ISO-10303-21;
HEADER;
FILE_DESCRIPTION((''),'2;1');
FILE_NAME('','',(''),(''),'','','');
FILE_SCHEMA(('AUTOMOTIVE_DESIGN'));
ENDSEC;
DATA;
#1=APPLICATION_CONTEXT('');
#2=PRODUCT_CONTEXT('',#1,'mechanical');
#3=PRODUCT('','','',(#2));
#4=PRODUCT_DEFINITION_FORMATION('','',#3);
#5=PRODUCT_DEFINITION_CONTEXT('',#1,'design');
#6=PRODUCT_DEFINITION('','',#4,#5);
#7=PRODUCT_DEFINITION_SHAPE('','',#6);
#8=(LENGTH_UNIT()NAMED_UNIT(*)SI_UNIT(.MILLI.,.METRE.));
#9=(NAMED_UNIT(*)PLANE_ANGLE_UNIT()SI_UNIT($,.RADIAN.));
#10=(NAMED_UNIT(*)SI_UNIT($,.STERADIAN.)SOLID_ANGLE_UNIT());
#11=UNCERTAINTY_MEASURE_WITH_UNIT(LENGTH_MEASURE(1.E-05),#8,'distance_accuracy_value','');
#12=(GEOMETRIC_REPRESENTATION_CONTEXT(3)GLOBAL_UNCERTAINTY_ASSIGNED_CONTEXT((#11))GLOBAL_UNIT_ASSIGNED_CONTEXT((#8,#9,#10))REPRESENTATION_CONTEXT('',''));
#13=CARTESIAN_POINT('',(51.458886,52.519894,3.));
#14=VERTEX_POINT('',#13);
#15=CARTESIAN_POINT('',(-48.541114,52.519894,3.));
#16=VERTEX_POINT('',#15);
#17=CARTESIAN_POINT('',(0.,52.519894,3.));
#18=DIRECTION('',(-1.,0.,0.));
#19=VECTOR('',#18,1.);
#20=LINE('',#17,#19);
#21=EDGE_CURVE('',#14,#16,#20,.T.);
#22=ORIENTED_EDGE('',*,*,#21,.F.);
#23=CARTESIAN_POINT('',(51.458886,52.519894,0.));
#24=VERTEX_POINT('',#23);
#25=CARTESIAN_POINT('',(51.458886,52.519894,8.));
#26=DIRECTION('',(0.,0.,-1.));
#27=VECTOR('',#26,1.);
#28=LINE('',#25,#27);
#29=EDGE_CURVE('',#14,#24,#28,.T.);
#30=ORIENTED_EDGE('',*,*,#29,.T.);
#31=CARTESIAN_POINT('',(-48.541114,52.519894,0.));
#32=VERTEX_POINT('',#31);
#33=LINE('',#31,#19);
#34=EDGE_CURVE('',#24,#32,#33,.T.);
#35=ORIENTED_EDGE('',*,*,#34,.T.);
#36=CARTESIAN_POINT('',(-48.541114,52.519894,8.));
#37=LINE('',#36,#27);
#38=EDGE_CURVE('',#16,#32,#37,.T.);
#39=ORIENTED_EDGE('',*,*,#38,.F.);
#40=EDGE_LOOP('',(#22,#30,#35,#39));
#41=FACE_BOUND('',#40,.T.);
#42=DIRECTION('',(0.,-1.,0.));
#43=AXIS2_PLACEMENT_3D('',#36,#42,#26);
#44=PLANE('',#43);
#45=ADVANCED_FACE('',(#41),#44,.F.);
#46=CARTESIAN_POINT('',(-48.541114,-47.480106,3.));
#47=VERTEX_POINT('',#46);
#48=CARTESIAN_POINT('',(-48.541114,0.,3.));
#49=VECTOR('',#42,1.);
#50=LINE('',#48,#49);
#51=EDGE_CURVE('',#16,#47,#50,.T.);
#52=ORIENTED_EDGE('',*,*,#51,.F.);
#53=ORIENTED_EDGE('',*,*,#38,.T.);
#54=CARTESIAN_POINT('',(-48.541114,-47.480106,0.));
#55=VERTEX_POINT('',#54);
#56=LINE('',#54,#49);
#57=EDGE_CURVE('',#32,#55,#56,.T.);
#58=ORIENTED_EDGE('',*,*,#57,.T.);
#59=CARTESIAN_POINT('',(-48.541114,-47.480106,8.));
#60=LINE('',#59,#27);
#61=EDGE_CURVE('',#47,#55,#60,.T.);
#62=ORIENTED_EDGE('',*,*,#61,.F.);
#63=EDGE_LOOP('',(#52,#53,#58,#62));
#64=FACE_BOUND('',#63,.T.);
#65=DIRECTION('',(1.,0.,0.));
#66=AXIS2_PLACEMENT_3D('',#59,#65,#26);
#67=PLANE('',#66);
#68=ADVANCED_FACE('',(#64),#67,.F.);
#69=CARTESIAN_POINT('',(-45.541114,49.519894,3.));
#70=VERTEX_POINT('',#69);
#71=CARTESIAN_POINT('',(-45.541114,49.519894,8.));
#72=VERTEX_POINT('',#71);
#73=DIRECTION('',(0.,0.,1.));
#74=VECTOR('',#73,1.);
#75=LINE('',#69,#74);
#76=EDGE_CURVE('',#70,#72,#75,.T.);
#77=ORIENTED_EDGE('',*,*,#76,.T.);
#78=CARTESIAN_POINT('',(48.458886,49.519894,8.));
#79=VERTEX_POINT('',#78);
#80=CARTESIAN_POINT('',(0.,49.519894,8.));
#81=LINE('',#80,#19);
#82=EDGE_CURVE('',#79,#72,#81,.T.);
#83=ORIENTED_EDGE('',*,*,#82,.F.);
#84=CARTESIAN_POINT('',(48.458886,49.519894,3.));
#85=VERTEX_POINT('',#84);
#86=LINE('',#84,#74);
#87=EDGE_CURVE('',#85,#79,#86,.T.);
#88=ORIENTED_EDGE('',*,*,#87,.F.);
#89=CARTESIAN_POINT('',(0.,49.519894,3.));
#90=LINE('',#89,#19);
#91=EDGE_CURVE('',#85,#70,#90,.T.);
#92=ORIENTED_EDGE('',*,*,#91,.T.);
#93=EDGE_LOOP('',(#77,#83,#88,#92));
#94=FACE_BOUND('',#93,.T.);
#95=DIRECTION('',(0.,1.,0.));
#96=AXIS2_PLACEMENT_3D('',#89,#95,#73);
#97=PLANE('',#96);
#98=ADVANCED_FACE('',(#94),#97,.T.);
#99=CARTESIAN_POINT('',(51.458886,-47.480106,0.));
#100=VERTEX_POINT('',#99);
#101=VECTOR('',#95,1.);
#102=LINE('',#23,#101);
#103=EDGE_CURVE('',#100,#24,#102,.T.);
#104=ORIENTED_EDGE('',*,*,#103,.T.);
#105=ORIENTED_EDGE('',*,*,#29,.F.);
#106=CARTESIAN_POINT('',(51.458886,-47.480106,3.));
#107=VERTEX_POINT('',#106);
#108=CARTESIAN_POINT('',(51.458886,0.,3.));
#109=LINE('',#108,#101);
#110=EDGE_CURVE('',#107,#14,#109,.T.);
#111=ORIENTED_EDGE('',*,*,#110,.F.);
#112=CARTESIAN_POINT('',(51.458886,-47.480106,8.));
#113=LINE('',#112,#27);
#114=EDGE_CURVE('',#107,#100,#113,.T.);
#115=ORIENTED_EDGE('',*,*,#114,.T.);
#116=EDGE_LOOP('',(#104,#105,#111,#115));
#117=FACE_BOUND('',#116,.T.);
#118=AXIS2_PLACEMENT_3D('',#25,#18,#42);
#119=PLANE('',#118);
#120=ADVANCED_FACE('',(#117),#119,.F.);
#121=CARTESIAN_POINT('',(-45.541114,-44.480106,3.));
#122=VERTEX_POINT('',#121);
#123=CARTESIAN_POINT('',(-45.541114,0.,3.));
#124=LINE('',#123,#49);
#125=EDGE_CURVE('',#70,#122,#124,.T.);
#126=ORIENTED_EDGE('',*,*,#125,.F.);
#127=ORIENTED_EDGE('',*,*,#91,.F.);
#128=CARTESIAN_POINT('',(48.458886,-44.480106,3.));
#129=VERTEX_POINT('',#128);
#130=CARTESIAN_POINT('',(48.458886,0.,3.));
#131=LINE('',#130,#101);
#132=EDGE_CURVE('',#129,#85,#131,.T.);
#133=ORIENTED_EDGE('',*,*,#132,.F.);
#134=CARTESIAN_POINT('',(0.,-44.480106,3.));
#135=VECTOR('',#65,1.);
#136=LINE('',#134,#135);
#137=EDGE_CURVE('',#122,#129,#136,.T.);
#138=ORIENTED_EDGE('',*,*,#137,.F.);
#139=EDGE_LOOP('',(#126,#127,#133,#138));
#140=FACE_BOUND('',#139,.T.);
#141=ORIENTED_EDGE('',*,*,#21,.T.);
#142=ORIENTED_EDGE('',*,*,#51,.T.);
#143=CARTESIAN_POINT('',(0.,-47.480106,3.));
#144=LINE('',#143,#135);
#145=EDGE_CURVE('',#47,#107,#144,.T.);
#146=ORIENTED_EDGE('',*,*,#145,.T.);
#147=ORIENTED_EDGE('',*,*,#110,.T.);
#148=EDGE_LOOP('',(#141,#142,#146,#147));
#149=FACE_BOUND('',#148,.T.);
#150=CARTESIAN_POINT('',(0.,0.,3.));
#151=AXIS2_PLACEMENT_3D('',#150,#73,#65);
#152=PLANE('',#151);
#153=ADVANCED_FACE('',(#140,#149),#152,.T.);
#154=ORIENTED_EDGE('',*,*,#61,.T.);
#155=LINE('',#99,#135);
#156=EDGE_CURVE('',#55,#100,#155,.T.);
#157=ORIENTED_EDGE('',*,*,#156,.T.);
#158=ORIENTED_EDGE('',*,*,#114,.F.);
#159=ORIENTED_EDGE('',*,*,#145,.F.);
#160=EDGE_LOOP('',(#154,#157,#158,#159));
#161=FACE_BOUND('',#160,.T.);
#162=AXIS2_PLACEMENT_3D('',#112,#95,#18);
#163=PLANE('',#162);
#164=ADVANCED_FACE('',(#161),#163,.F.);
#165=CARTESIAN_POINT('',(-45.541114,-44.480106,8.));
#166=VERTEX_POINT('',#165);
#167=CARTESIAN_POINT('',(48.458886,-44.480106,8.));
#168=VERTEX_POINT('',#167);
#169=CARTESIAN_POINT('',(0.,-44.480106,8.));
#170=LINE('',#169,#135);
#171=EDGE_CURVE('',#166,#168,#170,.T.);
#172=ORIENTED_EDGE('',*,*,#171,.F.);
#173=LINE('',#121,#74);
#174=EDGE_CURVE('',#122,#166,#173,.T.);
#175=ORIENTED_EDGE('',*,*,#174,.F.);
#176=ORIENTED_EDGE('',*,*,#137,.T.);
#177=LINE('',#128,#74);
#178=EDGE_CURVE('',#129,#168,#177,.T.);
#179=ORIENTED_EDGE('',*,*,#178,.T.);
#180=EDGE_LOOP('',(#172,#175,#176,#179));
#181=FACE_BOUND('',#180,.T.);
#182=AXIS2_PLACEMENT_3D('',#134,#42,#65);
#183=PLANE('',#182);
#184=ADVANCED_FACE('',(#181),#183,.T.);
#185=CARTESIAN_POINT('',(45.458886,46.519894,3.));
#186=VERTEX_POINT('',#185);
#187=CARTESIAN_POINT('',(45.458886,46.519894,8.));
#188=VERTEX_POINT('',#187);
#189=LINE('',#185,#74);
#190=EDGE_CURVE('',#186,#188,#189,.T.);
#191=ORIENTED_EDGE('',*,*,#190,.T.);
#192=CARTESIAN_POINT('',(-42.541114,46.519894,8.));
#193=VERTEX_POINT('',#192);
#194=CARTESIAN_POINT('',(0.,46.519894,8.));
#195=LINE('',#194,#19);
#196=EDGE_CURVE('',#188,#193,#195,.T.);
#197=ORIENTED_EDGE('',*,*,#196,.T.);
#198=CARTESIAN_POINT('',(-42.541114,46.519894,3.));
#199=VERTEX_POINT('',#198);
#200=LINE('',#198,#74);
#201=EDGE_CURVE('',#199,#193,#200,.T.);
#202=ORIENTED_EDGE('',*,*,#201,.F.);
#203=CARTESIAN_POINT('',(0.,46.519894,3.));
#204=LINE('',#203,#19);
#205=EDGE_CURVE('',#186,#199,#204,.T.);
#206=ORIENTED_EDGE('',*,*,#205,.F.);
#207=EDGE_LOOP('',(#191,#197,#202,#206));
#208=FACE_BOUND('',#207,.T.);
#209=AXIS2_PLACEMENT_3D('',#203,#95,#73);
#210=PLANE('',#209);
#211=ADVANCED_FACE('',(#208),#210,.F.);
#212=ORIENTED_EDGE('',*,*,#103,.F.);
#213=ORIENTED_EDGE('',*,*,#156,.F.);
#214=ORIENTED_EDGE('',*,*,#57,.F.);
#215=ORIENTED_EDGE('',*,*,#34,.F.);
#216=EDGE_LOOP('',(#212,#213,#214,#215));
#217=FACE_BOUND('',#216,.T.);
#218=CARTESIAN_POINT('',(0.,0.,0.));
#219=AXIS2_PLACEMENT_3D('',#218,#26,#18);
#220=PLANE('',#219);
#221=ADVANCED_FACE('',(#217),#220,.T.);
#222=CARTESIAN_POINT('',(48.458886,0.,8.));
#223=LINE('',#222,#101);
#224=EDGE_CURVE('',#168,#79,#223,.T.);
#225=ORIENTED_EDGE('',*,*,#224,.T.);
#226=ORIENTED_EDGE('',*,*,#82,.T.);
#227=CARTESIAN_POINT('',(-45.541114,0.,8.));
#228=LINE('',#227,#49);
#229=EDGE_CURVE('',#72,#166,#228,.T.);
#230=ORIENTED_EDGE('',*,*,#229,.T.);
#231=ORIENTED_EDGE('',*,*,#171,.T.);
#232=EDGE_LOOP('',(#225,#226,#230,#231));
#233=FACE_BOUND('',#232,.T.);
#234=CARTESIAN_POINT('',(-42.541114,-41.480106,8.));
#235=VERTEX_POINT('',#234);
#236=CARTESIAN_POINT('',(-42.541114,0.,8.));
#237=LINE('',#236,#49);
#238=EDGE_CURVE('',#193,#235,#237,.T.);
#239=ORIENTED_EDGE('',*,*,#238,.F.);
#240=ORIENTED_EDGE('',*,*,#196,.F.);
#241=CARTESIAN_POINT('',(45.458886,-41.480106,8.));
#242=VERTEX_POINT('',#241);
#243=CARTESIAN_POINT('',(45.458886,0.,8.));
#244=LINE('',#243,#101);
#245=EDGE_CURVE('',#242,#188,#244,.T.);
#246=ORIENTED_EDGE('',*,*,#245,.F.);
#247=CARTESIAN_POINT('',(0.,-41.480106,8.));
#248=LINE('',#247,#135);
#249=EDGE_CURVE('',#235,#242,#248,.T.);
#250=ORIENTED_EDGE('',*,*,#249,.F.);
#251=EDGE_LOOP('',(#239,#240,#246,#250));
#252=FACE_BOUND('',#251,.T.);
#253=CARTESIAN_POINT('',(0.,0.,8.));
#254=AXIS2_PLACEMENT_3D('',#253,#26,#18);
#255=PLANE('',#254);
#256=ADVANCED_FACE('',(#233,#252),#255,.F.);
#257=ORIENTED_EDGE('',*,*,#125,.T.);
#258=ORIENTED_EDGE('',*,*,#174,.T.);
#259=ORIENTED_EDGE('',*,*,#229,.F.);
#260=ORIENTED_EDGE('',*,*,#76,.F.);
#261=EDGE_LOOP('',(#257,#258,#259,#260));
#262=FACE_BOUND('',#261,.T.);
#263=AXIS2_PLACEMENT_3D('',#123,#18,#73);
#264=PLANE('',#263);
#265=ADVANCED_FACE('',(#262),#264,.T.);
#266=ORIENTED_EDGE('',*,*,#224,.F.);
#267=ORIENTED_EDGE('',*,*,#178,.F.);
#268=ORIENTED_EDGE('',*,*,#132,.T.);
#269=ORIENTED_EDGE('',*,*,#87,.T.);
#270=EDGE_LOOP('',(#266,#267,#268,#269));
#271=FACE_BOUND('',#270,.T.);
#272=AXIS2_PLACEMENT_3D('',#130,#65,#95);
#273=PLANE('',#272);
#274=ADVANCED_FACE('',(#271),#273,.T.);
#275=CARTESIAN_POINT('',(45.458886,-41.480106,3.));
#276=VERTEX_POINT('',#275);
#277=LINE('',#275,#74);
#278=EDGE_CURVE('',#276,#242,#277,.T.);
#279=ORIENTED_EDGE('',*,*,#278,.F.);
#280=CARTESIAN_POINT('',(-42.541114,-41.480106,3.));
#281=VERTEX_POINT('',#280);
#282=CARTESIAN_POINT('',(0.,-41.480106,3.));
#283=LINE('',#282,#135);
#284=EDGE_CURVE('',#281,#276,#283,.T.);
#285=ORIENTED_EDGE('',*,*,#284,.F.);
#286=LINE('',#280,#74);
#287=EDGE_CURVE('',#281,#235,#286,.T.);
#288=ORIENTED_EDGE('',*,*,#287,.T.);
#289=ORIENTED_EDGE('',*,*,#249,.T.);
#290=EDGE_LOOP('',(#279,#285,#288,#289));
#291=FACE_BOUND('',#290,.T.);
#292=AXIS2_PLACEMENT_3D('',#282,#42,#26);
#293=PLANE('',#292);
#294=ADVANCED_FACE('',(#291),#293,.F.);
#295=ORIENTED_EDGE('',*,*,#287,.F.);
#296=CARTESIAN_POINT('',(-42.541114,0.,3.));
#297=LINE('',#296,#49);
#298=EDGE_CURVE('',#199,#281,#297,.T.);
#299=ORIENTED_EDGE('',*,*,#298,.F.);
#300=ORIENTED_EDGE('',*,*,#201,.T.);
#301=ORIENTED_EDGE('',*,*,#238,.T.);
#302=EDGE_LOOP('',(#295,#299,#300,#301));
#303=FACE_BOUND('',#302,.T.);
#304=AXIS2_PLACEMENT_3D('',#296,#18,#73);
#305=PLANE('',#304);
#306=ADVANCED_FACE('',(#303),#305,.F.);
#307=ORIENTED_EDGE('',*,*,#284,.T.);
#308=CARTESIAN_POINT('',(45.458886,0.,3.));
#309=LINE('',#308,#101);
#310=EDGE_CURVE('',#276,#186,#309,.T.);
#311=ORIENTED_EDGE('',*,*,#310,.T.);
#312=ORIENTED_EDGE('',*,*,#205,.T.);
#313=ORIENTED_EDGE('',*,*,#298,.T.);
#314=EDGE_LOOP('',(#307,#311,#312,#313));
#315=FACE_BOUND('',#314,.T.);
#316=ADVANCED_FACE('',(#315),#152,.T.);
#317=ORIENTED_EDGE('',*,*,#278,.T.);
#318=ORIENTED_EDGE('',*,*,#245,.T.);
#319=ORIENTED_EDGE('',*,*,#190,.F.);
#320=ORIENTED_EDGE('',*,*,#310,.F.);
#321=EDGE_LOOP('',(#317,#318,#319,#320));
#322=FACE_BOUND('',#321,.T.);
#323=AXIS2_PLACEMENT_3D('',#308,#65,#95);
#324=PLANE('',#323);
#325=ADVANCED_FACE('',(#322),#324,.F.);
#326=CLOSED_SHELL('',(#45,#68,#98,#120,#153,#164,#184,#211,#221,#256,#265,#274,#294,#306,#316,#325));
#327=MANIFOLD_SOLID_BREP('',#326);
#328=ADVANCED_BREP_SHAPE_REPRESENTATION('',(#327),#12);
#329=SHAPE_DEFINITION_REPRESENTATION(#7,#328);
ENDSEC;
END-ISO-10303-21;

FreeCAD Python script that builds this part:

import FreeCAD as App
import Part
import Sketcher

V = App.Vector

doc = App.newDocument("Part")
body = doc.addObject("PartDesign::Body", "Body")

# Sketch on XY plane
sketch1 = doc.addObject("Sketcher::SketchObject", "Sketch")
body.addObject(sketch1)
sketch1.AttachmentSupport = (doc.XY_Plane, [""])
sketch1.MapMode = "FlatFace"
sketch1.addGeometry([
    Part.LineSegment(V(-49, 53, 0), V(-49, -47, 0)),
    Part.LineSegment(V(-49, -47, 0), V(51, -47, 0)),
    Part.LineSegment(V(51, -47, 0), V(51, 53, 0)),
    Part.LineSegment(V(51, 53, 0), V(-49, 53, 0)),
], False)
sketch1.addConstraint([
    Sketcher.Constraint("Coincident", 0, 2, 1, 1),
    Sketcher.Constraint("Coincident", 1, 2, 2, 1),
    Sketcher.Constraint("Coincident", 2, 2, 3, 1),
    Sketcher.Constraint("Coincident", 3, 2, 0, 1),
    Sketcher.Constraint("Vertical", 0),
    Sketcher.Constraint("Horizontal", 1),
    Sketcher.Constraint("Vertical", 2),
    Sketcher.Constraint("Horizontal", 3),
    Sketcher.Constraint("Equal", 3, 0),
    Sketcher.Constraint("DistanceX", 1, 1, 1, 2, 100.0),
    Sketcher.Constraint("DistanceX", 0, 2, -1, 1, 48.541114),
    Sketcher.Constraint("DistanceY", 0, 2, -1, 1, 47.480106),
])
pad1 = doc.addObject("PartDesign::Pad", "Pad")
body.addObject(pad1)
pad1.Profile = sketch1
pad1.Length = 8

# Sketch on XY plane
sketch2 = doc.addObject("Sketcher::SketchObject", "Sketch001")
body.addObject(sketch2)
sketch2.AttachmentSupport = (doc.XY_Plane, [""])
sketch2.MapMode = "FlatFace"
sketch2.AttachmentOffset = App.Placement(V(0, 0, 8), App.Rotation())
sketch2.addGeometry([
    Part.LineSegment(V(-49, 53, 0), V(-49, -47, 0)),  # 0
    Part.LineSegment(V(-49, -47, 0), V(51, -47, 0)),  # 1
    Part.LineSegment(V(51, -47, 0), V(51, 53, 0)),  # 2
    Part.LineSegment(V(51, 53, 0), V(-49, 53, 0)),  # 3
    Part.LineSegment(V(48, -44, 0), V(-46, -44, 0)),  # 4
    Part.LineSegment(V(-46, -44, 0), V(-46, 50, 0)),  # 5
    Part.LineSegment(V(-46, 50, 0), V(48, 50, 0)),  # 6
    Part.LineSegment(V(48, 50, 0), V(48, -44, 0)),  # 7
    Part.LineSegment(V(-43, 47, 0), V(-43, -41, 0)),  # 8
    Part.LineSegment(V(-43, -41, 0), V(45, -41, 0)),  # 9
    Part.LineSegment(V(45, -41, 0), V(45, 47, 0)),  # 10
    Part.LineSegment(V(45, 47, 0), V(-43, 47, 0)),  # 11
], False)
sketch2.addConstraint([
    Sketcher.Constraint("Coincident", 0, 2, 1, 1),
    Sketcher.Constraint("Coincident", 1, 2, 2, 1),
    Sketcher.Constraint("Coincident", 2, 2, 3, 1),
    Sketcher.Constraint("Coincident", 3, 2, 0, 1),
    Sketcher.Constraint("Coincident", 4, 2, 5, 1),
    Sketcher.Constraint("Coincident", 5, 2, 6, 1),
    Sketcher.Constraint("Coincident", 6, 2, 7, 1),
    Sketcher.Constraint("Coincident", 7, 2, 4, 1),
    Sketcher.Constraint("Coincident", 8, 2, 9, 1),
    Sketcher.Constraint("Coincident", 9, 2, 10, 1),
    Sketcher.Constraint("Coincident", 10, 2, 11, 1),
    Sketcher.Constraint("Coincident", 11, 2, 8, 1),
    Sketcher.Constraint("Vertical", 0),
    Sketcher.Constraint("Horizontal", 1),
    Sketcher.Constraint("Vertical", 2),
    Sketcher.Constraint("Horizontal", 3),
    Sketcher.Constraint("Horizontal", 4),
    Sketcher.Constraint("Vertical", 5),
    Sketcher.Constraint("Horizontal", 6),
    Sketcher.Constraint("Vertical", 7),
    Sketcher.Constraint("Vertical", 8),
    Sketcher.Constraint("Horizontal", 9),
    Sketcher.Constraint("Vertical", 10),
    Sketcher.Constraint("Horizontal", 11),
    Sketcher.Constraint("Equal", 3, 0),
    Sketcher.Constraint("Equal", 6, 5),
    Sketcher.Constraint("Equal", 11, 8),
    Sketcher.Constraint("DistanceX", 1, 1, 1, 2, 100.0),
    Sketcher.Constraint("DistanceX", 4, 2, 4, 1, 94.0),
    Sketcher.Constraint("DistanceX", 9, 1, 9, 2, 88.0),
    Sketcher.Constraint("DistanceX", 0, 2, 4, 2, 3.0),
    Sketcher.Constraint("DistanceY", 0, 2, 4, 2, 3.0),
    Sketcher.Constraint("DistanceX", 4, 2, 8, 2, 3.0),
    Sketcher.Constraint("DistanceY", 4, 2, 8, 2, 3.0),
    Sketcher.Constraint("DistanceX", 0, 2, -1, 1, 48.541114),
    Sketcher.Constraint("DistanceY", 0, 2, -1, 1, 47.480106),
])
pocket1 = doc.addObject("PartDesign::Pocket", "Pocket")
body.addObject(pocket1)
pocket1.Profile = sketch2
pocket1.Length = 5

doc.recompute()
